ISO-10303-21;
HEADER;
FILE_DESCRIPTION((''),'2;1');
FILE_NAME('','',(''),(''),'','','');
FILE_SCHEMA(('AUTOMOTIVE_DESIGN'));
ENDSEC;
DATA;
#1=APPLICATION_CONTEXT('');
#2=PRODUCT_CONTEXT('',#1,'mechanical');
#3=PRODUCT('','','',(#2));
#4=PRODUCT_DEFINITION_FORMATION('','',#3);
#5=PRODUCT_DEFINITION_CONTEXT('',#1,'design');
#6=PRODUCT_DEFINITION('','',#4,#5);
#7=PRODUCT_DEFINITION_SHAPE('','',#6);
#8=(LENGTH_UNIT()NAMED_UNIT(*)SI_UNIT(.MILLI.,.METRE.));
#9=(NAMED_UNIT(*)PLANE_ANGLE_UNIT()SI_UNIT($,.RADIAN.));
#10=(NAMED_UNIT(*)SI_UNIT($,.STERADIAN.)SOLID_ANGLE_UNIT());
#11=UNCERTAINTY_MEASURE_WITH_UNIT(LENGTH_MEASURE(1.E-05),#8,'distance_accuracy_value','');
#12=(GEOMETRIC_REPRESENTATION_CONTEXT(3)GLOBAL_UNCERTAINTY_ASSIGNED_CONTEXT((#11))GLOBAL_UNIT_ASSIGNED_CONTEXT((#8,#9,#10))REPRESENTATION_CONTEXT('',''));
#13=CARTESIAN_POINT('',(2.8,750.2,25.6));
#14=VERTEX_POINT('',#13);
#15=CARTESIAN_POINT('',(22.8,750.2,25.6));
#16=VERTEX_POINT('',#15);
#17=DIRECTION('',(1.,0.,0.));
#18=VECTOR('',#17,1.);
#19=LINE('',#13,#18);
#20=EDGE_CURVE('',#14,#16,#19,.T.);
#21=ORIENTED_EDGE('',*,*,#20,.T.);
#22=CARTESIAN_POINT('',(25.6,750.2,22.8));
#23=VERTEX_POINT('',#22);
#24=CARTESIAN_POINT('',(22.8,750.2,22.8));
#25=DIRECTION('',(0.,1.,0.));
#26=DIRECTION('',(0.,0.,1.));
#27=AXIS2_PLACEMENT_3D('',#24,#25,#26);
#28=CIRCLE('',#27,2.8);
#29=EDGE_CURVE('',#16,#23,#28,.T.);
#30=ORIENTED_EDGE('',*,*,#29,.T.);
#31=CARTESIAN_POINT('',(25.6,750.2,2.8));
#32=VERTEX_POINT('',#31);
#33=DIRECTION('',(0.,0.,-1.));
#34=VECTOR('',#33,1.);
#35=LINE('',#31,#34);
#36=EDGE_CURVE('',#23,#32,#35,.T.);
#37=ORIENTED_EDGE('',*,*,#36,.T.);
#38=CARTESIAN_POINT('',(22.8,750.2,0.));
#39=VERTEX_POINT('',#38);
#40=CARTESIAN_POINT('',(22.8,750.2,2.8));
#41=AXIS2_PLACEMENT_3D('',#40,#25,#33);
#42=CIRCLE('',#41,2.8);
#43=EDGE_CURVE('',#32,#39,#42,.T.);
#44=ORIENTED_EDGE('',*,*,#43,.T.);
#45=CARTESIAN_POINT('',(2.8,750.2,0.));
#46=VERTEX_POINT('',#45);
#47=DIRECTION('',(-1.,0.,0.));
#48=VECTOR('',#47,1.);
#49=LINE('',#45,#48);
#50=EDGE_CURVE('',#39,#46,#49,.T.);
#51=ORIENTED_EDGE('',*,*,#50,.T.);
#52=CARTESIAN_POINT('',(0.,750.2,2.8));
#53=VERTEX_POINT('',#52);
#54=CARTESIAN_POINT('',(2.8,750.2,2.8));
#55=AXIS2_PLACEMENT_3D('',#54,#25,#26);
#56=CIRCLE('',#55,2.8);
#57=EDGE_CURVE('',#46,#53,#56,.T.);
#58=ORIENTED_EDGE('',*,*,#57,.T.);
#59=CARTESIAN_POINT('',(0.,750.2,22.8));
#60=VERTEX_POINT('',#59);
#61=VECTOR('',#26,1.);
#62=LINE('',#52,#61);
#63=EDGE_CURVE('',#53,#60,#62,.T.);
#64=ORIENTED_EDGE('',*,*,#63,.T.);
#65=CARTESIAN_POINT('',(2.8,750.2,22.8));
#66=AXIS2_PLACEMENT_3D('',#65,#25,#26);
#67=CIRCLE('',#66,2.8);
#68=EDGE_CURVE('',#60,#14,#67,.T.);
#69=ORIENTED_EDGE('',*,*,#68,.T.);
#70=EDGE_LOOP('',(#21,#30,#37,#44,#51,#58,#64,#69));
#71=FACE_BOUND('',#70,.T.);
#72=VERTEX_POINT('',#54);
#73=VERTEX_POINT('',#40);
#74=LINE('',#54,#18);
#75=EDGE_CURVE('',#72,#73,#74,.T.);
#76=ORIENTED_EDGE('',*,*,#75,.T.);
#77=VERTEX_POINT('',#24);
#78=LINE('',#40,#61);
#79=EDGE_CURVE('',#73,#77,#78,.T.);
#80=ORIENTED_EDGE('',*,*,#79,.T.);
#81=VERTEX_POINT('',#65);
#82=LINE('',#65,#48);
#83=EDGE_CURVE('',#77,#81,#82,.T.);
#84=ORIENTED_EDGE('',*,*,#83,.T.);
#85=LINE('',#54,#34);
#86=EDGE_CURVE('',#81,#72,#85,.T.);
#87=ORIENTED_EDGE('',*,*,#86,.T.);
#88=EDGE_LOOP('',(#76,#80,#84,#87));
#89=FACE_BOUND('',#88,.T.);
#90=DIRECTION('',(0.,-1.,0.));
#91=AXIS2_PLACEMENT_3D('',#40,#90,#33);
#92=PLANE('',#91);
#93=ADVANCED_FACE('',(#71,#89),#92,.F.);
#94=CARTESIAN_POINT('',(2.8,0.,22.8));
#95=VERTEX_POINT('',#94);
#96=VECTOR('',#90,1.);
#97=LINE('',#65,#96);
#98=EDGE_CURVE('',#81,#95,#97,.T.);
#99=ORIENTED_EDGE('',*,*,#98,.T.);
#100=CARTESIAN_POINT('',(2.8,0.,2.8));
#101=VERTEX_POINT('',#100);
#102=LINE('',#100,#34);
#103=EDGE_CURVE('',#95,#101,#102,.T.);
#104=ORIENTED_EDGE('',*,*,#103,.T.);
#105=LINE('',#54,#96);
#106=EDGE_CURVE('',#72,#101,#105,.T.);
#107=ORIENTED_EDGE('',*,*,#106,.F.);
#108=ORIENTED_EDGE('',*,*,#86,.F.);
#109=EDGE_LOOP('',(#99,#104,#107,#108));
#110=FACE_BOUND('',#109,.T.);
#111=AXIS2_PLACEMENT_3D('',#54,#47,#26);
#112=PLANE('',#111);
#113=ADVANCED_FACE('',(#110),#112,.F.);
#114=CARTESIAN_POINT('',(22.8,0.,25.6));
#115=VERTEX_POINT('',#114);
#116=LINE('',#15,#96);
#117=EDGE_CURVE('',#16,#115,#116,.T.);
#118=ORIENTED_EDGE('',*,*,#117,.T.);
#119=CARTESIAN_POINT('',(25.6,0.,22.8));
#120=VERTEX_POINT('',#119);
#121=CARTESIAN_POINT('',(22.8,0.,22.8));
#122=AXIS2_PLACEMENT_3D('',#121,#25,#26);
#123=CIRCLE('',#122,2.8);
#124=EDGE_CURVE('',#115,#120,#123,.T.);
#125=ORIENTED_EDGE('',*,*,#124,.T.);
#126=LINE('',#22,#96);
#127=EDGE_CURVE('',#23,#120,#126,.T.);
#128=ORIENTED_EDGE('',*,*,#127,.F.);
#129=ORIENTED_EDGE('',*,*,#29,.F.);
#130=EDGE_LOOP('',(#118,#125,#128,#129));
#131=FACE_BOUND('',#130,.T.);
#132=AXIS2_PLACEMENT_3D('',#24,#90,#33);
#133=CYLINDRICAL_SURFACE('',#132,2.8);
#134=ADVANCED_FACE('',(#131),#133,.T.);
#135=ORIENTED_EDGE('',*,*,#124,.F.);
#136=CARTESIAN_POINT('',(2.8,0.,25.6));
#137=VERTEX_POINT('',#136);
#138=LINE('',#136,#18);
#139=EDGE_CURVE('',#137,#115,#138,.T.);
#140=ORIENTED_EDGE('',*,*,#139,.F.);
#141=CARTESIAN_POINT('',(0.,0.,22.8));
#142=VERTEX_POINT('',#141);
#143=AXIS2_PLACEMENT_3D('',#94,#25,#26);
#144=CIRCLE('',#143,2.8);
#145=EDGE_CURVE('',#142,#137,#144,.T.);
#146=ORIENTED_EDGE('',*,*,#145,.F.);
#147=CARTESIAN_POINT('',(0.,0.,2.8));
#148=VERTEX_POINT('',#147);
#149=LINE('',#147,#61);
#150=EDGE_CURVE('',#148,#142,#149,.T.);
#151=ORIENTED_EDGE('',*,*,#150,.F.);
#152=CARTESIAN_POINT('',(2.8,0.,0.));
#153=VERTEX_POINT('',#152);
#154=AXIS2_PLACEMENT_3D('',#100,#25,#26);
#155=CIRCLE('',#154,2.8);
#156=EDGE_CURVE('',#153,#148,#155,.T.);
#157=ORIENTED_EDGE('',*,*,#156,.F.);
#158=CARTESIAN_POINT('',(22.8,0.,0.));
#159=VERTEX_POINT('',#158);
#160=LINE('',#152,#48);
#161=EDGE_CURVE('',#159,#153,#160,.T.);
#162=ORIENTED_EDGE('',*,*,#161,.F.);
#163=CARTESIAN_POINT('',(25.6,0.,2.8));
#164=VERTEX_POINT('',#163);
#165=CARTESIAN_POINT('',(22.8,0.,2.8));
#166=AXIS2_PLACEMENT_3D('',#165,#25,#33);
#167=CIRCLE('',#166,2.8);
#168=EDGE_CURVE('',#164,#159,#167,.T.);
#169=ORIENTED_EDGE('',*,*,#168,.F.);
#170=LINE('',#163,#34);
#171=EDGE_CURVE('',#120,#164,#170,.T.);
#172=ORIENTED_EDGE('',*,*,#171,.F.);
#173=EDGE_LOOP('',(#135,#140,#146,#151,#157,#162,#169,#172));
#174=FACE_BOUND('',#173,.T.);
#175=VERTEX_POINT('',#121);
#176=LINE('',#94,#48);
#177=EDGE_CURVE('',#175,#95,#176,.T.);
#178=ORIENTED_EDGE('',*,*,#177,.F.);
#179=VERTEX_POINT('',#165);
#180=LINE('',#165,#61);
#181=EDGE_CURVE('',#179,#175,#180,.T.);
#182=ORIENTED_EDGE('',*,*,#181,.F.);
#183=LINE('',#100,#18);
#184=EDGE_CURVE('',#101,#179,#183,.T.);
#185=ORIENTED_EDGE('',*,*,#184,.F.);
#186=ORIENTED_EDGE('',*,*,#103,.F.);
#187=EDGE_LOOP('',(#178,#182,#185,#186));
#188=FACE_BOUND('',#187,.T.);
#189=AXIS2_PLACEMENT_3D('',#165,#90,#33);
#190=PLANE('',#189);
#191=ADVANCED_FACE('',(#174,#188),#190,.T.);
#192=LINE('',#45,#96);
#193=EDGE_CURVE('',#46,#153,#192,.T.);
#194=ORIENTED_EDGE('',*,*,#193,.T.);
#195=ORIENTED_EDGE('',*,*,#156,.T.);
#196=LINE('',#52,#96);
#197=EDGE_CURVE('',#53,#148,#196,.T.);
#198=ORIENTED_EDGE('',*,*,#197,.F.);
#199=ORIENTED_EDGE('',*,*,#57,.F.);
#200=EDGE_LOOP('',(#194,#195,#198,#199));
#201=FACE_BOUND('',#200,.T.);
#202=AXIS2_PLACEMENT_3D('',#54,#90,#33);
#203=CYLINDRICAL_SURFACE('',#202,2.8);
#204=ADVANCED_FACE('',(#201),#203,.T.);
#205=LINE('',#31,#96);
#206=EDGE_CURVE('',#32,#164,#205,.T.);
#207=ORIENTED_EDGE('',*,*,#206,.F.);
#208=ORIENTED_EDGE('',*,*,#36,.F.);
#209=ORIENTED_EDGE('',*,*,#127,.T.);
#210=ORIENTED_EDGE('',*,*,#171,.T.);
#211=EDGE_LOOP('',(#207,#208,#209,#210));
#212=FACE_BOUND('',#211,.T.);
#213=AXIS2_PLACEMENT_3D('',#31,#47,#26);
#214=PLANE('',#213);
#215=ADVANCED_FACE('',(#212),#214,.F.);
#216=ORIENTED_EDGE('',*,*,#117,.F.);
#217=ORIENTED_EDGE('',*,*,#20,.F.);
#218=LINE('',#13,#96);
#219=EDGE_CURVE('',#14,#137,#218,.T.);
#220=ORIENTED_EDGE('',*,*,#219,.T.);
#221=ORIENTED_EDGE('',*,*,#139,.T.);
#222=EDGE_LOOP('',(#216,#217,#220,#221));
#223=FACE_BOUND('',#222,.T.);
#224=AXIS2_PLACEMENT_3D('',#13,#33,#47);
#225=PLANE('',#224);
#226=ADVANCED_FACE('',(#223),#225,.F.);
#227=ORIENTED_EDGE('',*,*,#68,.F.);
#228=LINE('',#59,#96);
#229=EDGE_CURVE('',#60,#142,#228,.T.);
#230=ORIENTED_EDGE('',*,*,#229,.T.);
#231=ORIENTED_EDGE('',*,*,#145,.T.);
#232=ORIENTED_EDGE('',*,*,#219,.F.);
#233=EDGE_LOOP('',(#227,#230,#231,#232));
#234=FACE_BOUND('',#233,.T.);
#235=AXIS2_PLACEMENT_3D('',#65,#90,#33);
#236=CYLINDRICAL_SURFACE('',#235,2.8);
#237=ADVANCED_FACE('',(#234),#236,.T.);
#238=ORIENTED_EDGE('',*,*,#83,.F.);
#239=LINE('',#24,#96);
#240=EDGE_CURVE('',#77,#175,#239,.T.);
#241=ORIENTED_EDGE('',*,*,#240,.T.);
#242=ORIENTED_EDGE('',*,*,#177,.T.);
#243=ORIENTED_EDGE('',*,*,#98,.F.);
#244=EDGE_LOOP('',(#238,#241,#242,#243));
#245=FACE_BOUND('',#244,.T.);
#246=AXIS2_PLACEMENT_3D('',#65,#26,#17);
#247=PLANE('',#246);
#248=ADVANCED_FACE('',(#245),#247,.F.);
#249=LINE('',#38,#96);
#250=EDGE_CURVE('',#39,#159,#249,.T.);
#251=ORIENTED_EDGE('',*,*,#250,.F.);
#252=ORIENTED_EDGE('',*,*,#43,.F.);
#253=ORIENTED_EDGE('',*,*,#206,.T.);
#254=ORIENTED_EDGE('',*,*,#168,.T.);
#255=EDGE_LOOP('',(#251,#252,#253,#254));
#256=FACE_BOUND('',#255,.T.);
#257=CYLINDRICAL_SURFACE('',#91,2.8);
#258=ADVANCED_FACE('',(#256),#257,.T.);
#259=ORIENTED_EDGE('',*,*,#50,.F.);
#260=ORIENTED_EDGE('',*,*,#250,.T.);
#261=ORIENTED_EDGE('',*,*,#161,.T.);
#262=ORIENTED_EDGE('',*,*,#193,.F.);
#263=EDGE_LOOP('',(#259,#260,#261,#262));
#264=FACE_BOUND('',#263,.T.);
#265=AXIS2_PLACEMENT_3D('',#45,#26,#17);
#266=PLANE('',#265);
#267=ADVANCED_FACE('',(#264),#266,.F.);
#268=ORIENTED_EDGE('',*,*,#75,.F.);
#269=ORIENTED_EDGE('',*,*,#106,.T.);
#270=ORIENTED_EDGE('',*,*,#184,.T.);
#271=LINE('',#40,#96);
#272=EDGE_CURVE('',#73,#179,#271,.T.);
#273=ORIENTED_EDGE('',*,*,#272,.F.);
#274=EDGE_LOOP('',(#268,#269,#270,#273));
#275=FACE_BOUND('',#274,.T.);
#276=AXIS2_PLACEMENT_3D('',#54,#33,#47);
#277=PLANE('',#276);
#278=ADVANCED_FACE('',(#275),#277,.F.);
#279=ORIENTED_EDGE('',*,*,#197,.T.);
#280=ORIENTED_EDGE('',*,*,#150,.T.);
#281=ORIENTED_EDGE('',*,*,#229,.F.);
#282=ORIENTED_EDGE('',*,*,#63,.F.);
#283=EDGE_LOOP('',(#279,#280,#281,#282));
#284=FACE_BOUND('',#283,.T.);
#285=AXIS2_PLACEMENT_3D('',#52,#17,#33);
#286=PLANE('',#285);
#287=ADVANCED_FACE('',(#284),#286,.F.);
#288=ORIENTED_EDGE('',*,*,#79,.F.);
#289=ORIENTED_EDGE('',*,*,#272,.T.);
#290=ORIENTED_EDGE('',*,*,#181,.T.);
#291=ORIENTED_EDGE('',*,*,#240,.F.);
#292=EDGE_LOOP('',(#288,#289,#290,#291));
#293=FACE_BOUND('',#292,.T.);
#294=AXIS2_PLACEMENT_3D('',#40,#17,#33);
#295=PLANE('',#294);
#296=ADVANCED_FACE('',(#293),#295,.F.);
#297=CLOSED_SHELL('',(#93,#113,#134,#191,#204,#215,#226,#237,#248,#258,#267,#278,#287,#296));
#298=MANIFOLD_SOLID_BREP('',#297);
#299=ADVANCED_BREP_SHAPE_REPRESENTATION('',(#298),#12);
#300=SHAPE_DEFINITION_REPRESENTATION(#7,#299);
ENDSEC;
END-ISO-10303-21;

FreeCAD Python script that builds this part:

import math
import FreeCAD as App
import Part
import Sketcher

doc = App.newDocument("Part")
body = doc.addObject("PartDesign::Body", "Body")

sketch1 = doc.addObject("Sketcher::SketchObject", "Sketch")
body.addObject(sketch1)
sketch1.AttachmentSupport = (doc.XZ_Plane, [""])
sketch1.MapMode = "FlatFace"
sketch1.addGeometry(Part.LineSegment(App.Vector(22.8, 0, 0), App.Vector(2.8, 0, 0)), False)
sketch1.addGeometry(Part.ArcOfCircle(Part.Circle(App.Vector(2.8, 2.8, 0), App.Vector(0, 0, 1), 2.8), math.radians(-180), math.radians(-90)), False)
sketch1.addGeometry(Part.LineSegment(App.Vector(0, 2.8, 0), App.Vector(0, 22.8, 0)), False)
sketch1.addGeometry(Part.ArcOfCircle(Part.Circle(App.Vector(2.8, 22.8, 0), App.Vector(0, 0, 1), 2.8), math.radians(90), math.radians(180)), False)
sketch1.addGeometry(Part.LineSegment(App.Vector(2.8, 25.6, 0), App.Vector(22.8, 25.6, 0)), False)
sketch1.addGeometry(Part.ArcOfCircle(Part.Circle(App.Vector(22.8, 22.8, 0), App.Vector(0, 0, 1), 2.8), math.radians(0), math.radians(90)), False)
sketch1.addGeometry(Part.LineSegment(App.Vector(25.6, 22.8, 0), App.Vector(25.6, 2.8, 0)), False)
sketch1.addGeometry(Part.ArcOfCircle(Part.Circle(App.Vector(22.8, 2.8, 0), App.Vector(0, 0, 1), 2.8), math.radians(-90), math.radians(0)), False)
sketch1.addConstraint(Sketcher.Constraint("Tangent", 0, 2, 1, 2))
sketch1.addConstraint(Sketcher.Constraint("Tangent", 1, 1, 2, 1))
sketch1.addConstraint(Sketcher.Constraint("Tangent", 2, 2, 3, 2))
sketch1.addConstraint(Sketcher.Constraint("Tangent", 3, 1, 4, 1))
sketch1.addConstraint(Sketcher.Constraint("Tangent", 4, 2, 5, 2))
sketch1.addConstraint(Sketcher.Constraint("Tangent", 5, 1, 6, 1))
sketch1.addConstraint(Sketcher.Constraint("Tangent", 6, 2, 7, 2))
sketch1.addConstraint(Sketcher.Constraint("Tangent", 7, 1, 0, 1))
sketch1.addConstraint(Sketcher.Constraint("Horizontal", 0))
sketch1.addConstraint(Sketcher.Constraint("Vertical", 2))
sketch1.addConstraint(Sketcher.Constraint("Horizontal", 4))
sketch1.addConstraint(Sketcher.Constraint("Vertical", 6))
sketch1.addConstraint(Sketcher.Constraint("Equal", 1, 3))
sketch1.addConstraint(Sketcher.Constraint("Equal", 3, 5))
sketch1.addConstraint(Sketcher.Constraint("Equal", 5, 7))
sketch1.addConstraint(Sketcher.Constraint("PointOnObject", 0, 2, -1))
sketch1.addConstraint(Sketcher.Constraint("PointOnObject", 1, 1, -2))
sketch1.addConstraint(Sketcher.Constraint("Equal", 4, 2))
sketch1.addConstraint(Sketcher.Constraint("Radius", 1, 2.8))
sketch1.addConstraint(Sketcher.Constraint("DistanceX", 0, 2, 0, 1, 20.0))
pad1 = doc.addObject("PartDesign::Pad", "Pad")
body.addObject(pad1)
pad1.Profile = sketch1
pad1.Length = 750.2
pad1.Reversed = True

sketch2 = doc.addObject("Sketcher::SketchObject", "Sketch001")
body.addObject(sketch2)
sketch2.AttachmentSupport = (doc.XZ_Plane, [""])
sketch2.MapMode = "FlatFace"
sketch2.addGeometry(Part.LineSegment(App.Vector(22.8, 2.8, 0), App.Vector(22.8, 22.8, 0)), False)
sketch2.addGeometry(Part.LineSegment(App.Vector(22.8, 22.8, 0), App.Vector(2.8, 22.8, 0)), False)
sketch2.addGeometry(Part.LineSegment(App.Vector(2.8, 22.8, 0), App.Vector(2.8, 2.8, 0)), False)
sketch2.addGeometry(Part.LineSegment(App.Vector(2.8, 2.8, 0), App.Vector(22.8, 2.8, 0)), False)
sketch2.addConstraint(Sketcher.Constraint("Coincident", 0, 2, 1, 1))
sketch2.addConstraint(Sketcher.Constraint("Coincident", 1, 2, 2, 1))
sketch2.addConstraint(Sketcher.Constraint("Coincident", 2, 2, 3, 1))
sketch2.addConstraint(Sketcher.Constraint("Coincident", 3, 2, 0, 1))
sketch2.addConstraint(Sketcher.Constraint("Vertical", 0))
sketch2.addConstraint(Sketcher.Constraint("Horizontal", 1))
sketch2.addConstraint(Sketcher.Constraint("Vertical", 2))
sketch2.addConstraint(Sketcher.Constraint("Horizontal", 3))
sketch2.addConstraint(Sketcher.Constraint("Equal", 3, 0))
sketch2.addConstraint(Sketcher.Constraint("DistanceX", 1, 2, 1, 1, 20.0))
sketch2.addConstraint(Sketcher.Constraint("DistanceX", -1, 1, 0, 2, 22.8))
sketch2.addConstraint(Sketcher.Constraint("DistanceY", -1, 1, 0, 2, 22.8))
pocket1 = doc.addObject("PartDesign::Pocket", "Pocket")
body.addObject(pocket1)
pocket1.Profile = sketch2
pocket1.Length = 750.2

doc.recompute()
